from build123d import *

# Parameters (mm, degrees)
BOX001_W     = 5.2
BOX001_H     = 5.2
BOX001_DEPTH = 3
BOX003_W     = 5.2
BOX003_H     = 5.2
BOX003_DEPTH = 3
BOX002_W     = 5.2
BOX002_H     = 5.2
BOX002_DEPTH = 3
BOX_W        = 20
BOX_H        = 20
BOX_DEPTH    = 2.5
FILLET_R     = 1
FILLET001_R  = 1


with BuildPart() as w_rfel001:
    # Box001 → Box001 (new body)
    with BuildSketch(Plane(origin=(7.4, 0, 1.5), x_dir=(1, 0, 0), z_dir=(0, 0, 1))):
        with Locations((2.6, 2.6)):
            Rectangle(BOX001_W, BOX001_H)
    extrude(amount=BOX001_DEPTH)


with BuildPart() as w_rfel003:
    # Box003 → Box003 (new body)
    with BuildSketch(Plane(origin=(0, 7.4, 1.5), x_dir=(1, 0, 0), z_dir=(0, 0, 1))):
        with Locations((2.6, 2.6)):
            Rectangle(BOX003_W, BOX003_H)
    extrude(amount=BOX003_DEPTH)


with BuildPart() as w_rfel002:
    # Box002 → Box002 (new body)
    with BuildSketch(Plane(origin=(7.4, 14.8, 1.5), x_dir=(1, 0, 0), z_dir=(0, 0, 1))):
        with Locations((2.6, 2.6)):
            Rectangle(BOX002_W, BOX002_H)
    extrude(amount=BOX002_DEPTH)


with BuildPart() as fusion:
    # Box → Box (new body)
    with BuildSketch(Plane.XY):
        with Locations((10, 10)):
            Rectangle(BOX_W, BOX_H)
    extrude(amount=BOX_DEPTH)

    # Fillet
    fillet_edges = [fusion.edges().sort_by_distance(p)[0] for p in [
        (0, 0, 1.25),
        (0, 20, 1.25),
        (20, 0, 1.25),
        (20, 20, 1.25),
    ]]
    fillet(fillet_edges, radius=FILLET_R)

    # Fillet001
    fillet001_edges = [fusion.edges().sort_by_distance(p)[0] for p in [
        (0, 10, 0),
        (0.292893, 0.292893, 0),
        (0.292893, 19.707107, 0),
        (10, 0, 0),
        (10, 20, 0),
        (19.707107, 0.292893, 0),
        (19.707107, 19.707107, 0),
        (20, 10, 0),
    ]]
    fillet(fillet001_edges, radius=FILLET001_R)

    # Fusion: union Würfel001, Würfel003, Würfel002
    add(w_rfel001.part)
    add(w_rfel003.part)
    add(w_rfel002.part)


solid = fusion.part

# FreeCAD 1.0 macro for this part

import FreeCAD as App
import Part
import Sketcher


def edges_at(feature, points):
    """Names of the edges that pass closest to the given points."""
    edges = feature.Shape.Edges
    near = lambda p: min(range(len(edges)), key=lambda i: edges[i].distToShape(Part.Vertex(*p))[0])
    return sorted({f"Edge{near(p) + 1}" for p in points})

doc = App.newDocument("Part")
body = doc.addObject("PartDesign::Body", "Body")

# Sketch on XY plane
sketch1 = doc.addObject("Sketcher::SketchObject", "Sketch")
body.addObject(sketch1)
sketch1.AttachmentSupport = (doc.XY_Plane, [""])
sketch1.MapMode = "FlatFace"
sketch1.AttachmentOffset = App.Placement(App.Vector(0, 0, 1.5), App.Rotation())
sketch1.addGeometry([
    Part.LineSegment(App.Vector(7, 5, 0), App.Vector(7, 0, 0)),
    Part.LineSegment(App.Vector(7, 0, 0), App.Vector(13, 0, 0)),
    Part.LineSegment(App.Vector(13, 0, 0), App.Vector(13, 5, 0)),
    Part.LineSegment(App.Vector(13, 5, 0), App.Vector(7, 5, 0)),
], False)
sketch1.addConstraint([
    Sketcher.Constraint("Coincident", 0, 2, 1, 1),
    Sketcher.Constraint("Coincident", 1, 2, 2, 1),
    Sketcher.Constraint("Coincident", 2, 2, 3, 1),
    Sketcher.Constraint("Coincident", 3, 2, 0, 1),
    Sketcher.Constraint("Vertical", 0),
    Sketcher.Constraint("Horizontal", 1),
    Sketcher.Constraint("Vertical", 2),
    Sketcher.Constraint("Horizontal", 3),
    Sketcher.Constraint("PointOnObject", 0, 2, -1),
    Sketcher.Constraint("Equal", 3, 0),
    Sketcher.Constraint("DistanceX", 1, 1, 1, 2, 5.2),
    Sketcher.Constraint("DistanceX", -1, 1, 0, 2, 7.4),
])
pad1 = doc.addObject("PartDesign::Pad", "Pad")
body.addObject(pad1)
pad1.Profile = sketch1
pad1.Length = 3
body2 = doc.addObject("PartDesign::Body", "Body001")

# Sketch on XY plane
sketch2 = doc.addObject("Sketcher::SketchObject", "Sketch001")
body2.addObject(sketch2)
sketch2.AttachmentSupport = (doc.getObject("XY_Plane001"), [""])
sketch2.MapMode = "FlatFace"
sketch2.AttachmentOffset = App.Placement(App.Vector(0, 0, 1.5), App.Rotation())
sketch2.addGeometry([
    Part.LineSegment(App.Vector(0, 13, 0), App.Vector(0, 7, 0)),
    Part.LineSegment(App.Vector(0, 7, 0), App.Vector(5, 7, 0)),
    Part.LineSegment(App.Vector(5, 7, 0), App.Vector(5, 13, 0)),
    Part.LineSegment(App.Vector(5, 13, 0), App.Vector(0, 13, 0)),
], False)
sketch2.addConstraint([
    Sketcher.Constraint("Coincident", 0, 2, 1, 1),
    Sketcher.Constraint("Coincident", 1, 2, 2, 1),
    Sketcher.Constraint("Coincident", 2, 2, 3, 1),
    Sketcher.Constraint("Coincident", 3, 2, 0, 1),
    Sketcher.Constraint("Vertical", 0),
    Sketcher.Constraint("Horizontal", 1),
    Sketcher.Constraint("Vertical", 2),
    Sketcher.Constraint("Horizontal", 3),
    Sketcher.Constraint("PointOnObject", 0, 2, -2),
    Sketcher.Constraint("Equal", 3, 0),
    Sketcher.Constraint("DistanceX", 1, 1, 1, 2, 5.2),
    Sketcher.Constraint("DistanceY", -1, 1, 0, 2, 7.4),
])
pad2 = doc.addObject("PartDesign::Pad", "Pad001")
body2.addObject(pad2)
pad2.Profile = sketch2
pad2.Length = 3
body3 = doc.addObject("PartDesign::Body", "Body002")

# Sketch on XY plane
sketch3 = doc.addObject("Sketcher::SketchObject", "Sketch002")
body3.addObject(sketch3)
sketch3.AttachmentSupport = (doc.getObject("XY_Plane002"), [""])
sketch3.MapMode = "FlatFace"
sketch3.AttachmentOffset = App.Placement(App.Vector(0, 0, 1.5), App.Rotation())
sketch3.addGeometry([
    Part.LineSegment(App.Vector(7, 20, 0), App.Vector(7, 15, 0)),
    Part.LineSegment(App.Vector(7, 15, 0), App.Vector(13, 15, 0)),
    Part.LineSegment(App.Vector(13, 15, 0), App.Vector(13, 20, 0)),
    Part.LineSegment(App.Vector(13, 20, 0), App.Vector(7, 20, 0)),
], False)
sketch3.addConstraint([
    Sketcher.Constraint("Coincident", 0, 2, 1, 1),
    Sketcher.Constraint("Coincident", 1, 2, 2, 1),
    Sketcher.Constraint("Coincident", 2, 2, 3, 1),
    Sketcher.Constraint("Coincident", 3, 2, 0, 1),
    Sketcher.Constraint("Vertical", 0),
    Sketcher.Constraint("Horizontal", 1),
    Sketcher.Constraint("Vertical", 2),
    Sketcher.Constraint("Horizontal", 3),
    Sketcher.Constraint("Equal", 3, 0),
    Sketcher.Constraint("DistanceX", 1, 1, 1, 2, 5.2),
    Sketcher.Constraint("DistanceY", -1, 1, 2, 2, 20.0),
    Sketcher.Constraint("DistanceX", -1, 1, 0, 2, 7.4),
])
pad3 = doc.addObject("PartDesign::Pad", "Pad002")
body3.addObject(pad3)
pad3.Profile = sketch3
pad3.Length = 3
body4 = doc.addObject("PartDesign::Body", "Body003")

# Sketch on XY plane
sketch4 = doc.addObject("Sketcher::SketchObject", "Sketch003")
body4.addObject(sketch4)
sketch4.AttachmentSupport = (doc.getObject("XY_Plane003"), [""])
sketch4.MapMode = "FlatFace"
sketch4.addGeometry([
    Part.LineSegment(App.Vector(0, 20, 0), App.Vector(0, 0, 0)),
    Part.LineSegment(App.Vector(0, 0, 0), App.Vector(20, 0, 0)),
    Part.LineSegment(App.Vector(20, 0, 0), App.Vector(20, 20, 0)),
    Part.LineSegment(App.Vector(20, 20, 0), App.Vector(0, 20, 0)),
], False)
sketch4.addConstraint([
    Sketcher.Constraint("Coincident", 0, 2, 1, 1),
    Sketcher.Constraint("Coincident", 1, 2, 2, 1),
    Sketcher.Constraint("Coincident", 2, 2, 3, 1),
    Sketcher.Constraint("Coincident", 3, 2, 0, 1),
    Sketcher.Constraint("Vertical", 0),
    Sketcher.Constraint("Horizontal", 1),
    Sketcher.Constraint("Vertical", 2),
    Sketcher.Constraint("Horizontal", 3),
    Sketcher.Constraint("Coincident", 0, 2, -1, 1),
    Sketcher.Constraint("Equal", 3, 0),
    Sketcher.Constraint("DistanceX", 1, 1, 1, 2, 20.0),
])
pad4 = doc.addObject("PartDesign::Pad", "Pad003")
body4.addObject(pad4)
pad4.Profile = sketch4
pad4.Length = 2.5
doc.recompute()

fillet = doc.addObject("PartDesign::Fillet", "Fillet")
body4.addObject(fillet)
fillet.Base = (pad4, edges_at(pad4, [
    (0, 0, 1.25),
    (0, 20, 1.25),
    (20, 0, 1.25),
    (20, 20, 1.25),
]))
fillet.Radius = 1
doc.recompute()

fillet2 = doc.addObject("PartDesign::Fillet", "Fillet001")
body4.addObject(fillet2)
fillet2.Base = (fillet, edges_at(fillet, [
    (0, 10, 0),
    (0.293, 0.293, 0),
    (0.293, 19.707, 0),
    (10, 0, 0),
    (10, 20, 0),
    (19.707, 0.293, 0),
    (19.707, 19.707, 0),
    (20, 10, 0),
]))
fillet2.Radius = 1
doc.recompute()

boolean = doc.addObject("PartDesign::Boolean", "Boolean")
body4.addObject(boolean)
boolean.Type = "Fuse"
boolean.addObjects([body])
doc.recompute()

boolean2 = doc.addObject("PartDesign::Boolean", "Boolean001")
body4.addObject(boolean2)
boolean2.Type = "Fuse"
boolean2.addObjects([body2])
doc.recompute()

boolean3 = doc.addObject("PartDesign::Boolean", "Boolean002")
body4.addObject(boolean3)
boolean3.Type = "Fuse"
boolean3.addObjects([body3])

doc.recompute()
